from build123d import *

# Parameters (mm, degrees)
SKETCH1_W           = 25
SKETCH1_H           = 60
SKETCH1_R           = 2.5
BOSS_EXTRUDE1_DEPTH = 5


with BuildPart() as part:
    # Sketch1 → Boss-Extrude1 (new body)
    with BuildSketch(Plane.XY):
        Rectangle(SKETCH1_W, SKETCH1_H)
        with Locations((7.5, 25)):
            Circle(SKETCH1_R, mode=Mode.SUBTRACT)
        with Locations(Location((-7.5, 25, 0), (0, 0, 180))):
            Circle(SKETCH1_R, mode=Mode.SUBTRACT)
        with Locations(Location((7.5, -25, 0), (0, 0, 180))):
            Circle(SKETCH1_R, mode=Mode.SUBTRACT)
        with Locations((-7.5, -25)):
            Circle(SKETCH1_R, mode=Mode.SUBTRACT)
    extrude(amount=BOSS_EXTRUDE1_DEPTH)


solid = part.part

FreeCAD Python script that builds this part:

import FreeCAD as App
import Part
import Sketcher
Q = App.Units.Quantity

doc = App.newDocument("Part")
body = doc.addObject("PartDesign::Body", "Body")

# Sketch on XY plane
sketch1 = doc.addObject("Sketcher::SketchObject", "Sketch")
body.addObject(sketch1)
sketch1.AttachmentSupport = (doc.XY_Plane, [""])
sketch1.MapMode = "FlatFace"
sketch1.addGeometry([
    Part.LineSegment(App.Vector(-12.5, 30, 0), App.Vector(-12.5, -30, 0)),  # 0
    Part.LineSegment(App.Vector(-12.5, -30, 0), App.Vector(12.5, -30, 0)),  # 1
    Part.LineSegment(App.Vector(12.5, -30, 0), App.Vector(12.5, 30, 0)),  # 2
    Part.LineSegment(App.Vector(12.5, 30, 0), App.Vector(-12.5, 30, 0)),  # 3
    Part.Circle(App.Vector(-7.5, -25, 0), App.Vector(0, 0, 1), 2.5),  # 4
    Part.Circle(App.Vector(7.5, -25, 0), App.Vector(0, 0, 1), 2.5),  # 5
    Part.Circle(App.Vector(-7.5, 25, 0), App.Vector(0, 0, 1), 2.5),  # 6
    Part.Circle(App.Vector(7.5, 25, 0), App.Vector(0, 0, 1), 2.5),  # 7
], False)
sketch1.addConstraint([
    Sketcher.Constraint("Coincident", 0, 2, 1, 1),
    Sketcher.Constraint("Coincident", 1, 2, 2, 1),
    Sketcher.Constraint("Coincident", 2, 2, 3, 1),
    Sketcher.Constraint("Coincident", 3, 2, 0, 1),
    Sketcher.Constraint("Vertical", 0),
    Sketcher.Constraint("Horizontal", 1),
    Sketcher.Constraint("Vertical", 2),
    Sketcher.Constraint("Horizontal", 3),
    Sketcher.Constraint("Equal", 4, 5),
    Sketcher.Constraint("Equal", 5, 6),
    Sketcher.Constraint("Equal", 6, 7),
    Sketcher.Constraint("Symmetric", 5, 3, 6, 3, -1, 1),
    Sketcher.Constraint("Symmetric", 4, 3, 7, 3, -1, 1),
    Sketcher.Constraint("Symmetric", 0, 2, 2, 2, -1, 1),
    Sketcher.Constraint("Symmetric", 4, 3, 5, 3, -2),
    Sketcher.Constraint("Diameter", 4, Q("5 mm")),
    Sketcher.Constraint("DistanceX", 1, 1, 1, 2, Q("25 mm")),
    Sketcher.Constraint("DistanceY", 0, 2, 0, 1, Q("60 mm")),
    Sketcher.Constraint("DistanceY", 4, 3, -1, 1, Q("25 mm")),
    Sketcher.Constraint("DistanceX", 4, 3, 5, 3, Q("15 mm")),
])
pad1 = doc.addObject("PartDesign::Pad", "Pad")
body.addObject(pad1)
pad1.Profile = sketch1
pad1.Length = 5

doc.recompute()
